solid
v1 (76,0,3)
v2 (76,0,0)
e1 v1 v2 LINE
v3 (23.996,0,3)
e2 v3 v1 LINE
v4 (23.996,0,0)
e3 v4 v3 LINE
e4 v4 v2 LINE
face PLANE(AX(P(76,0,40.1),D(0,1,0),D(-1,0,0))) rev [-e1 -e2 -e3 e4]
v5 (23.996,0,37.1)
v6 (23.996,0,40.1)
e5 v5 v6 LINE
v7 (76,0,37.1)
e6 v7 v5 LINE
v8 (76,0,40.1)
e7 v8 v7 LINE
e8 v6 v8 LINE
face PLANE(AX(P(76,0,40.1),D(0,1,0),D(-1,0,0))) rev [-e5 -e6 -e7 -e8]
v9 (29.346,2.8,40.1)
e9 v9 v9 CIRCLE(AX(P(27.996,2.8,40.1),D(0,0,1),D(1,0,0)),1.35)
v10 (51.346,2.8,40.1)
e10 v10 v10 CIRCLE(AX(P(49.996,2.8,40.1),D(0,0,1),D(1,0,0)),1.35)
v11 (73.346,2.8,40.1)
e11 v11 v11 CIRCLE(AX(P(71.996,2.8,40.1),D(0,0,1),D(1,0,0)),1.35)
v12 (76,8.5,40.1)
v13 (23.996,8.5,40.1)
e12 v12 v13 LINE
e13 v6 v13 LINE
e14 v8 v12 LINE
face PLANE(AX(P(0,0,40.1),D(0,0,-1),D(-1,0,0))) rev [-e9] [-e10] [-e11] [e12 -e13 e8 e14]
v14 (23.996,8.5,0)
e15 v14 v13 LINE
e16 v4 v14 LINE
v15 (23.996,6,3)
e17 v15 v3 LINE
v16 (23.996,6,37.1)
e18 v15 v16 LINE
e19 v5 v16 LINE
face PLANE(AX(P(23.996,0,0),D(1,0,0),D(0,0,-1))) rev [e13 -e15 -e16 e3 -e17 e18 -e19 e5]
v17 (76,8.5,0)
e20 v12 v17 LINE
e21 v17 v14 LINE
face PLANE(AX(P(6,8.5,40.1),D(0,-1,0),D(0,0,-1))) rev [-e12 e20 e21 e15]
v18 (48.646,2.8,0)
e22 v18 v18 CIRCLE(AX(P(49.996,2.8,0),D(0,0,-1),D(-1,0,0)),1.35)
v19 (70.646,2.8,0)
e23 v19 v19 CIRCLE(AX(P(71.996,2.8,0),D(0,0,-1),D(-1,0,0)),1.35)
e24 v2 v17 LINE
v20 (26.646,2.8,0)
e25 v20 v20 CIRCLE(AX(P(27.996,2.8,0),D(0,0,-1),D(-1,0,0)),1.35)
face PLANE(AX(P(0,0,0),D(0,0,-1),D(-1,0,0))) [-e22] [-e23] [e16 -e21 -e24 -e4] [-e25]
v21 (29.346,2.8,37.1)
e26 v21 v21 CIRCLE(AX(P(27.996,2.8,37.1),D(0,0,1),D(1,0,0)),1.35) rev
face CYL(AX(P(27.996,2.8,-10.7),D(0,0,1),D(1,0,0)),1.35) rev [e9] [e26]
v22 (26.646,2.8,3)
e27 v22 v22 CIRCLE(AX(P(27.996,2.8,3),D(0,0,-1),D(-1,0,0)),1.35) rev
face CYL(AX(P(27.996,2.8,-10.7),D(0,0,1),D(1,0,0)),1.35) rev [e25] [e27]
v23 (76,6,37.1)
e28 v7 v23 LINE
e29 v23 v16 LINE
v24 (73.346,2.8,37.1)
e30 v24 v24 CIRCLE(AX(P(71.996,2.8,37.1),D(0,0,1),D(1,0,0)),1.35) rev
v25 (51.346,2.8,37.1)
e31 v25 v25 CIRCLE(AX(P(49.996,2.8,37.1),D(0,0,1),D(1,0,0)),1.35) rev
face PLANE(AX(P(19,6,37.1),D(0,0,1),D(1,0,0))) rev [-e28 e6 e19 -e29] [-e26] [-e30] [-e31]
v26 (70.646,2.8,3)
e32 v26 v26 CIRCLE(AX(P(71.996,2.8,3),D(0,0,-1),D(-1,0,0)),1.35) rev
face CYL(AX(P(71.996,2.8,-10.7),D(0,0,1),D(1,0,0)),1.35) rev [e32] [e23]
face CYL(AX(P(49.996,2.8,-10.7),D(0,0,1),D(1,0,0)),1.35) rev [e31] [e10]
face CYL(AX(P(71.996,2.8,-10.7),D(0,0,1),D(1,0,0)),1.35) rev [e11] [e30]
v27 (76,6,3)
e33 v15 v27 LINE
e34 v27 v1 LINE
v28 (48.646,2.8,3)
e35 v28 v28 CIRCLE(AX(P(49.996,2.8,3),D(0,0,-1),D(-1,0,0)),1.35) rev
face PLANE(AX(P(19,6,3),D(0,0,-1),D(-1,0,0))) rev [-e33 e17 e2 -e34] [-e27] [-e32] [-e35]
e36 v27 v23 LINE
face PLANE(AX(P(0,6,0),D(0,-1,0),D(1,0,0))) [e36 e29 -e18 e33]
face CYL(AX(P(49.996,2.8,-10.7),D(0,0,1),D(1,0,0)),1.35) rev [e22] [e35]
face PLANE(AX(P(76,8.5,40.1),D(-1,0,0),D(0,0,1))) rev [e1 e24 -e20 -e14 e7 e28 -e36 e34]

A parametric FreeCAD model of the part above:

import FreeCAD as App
import Part
import Sketcher


def add_polygon(sketch, points):
    """Adds a closed chain of lines whose ends are joined by coincident constraints."""
    first, n = sketch.GeometryCount, len(points)
    for a, b in zip(points, points[1:] + points[:1]):
        sketch.addGeometry(Part.LineSegment(App.Vector(*a, 0), App.Vector(*b, 0)), False)
    for i in range(n):
        sketch.addConstraint(Sketcher.Constraint("Coincident", first + i, 2, first + (i + 1) % n, 1))

doc = App.newDocument("Part")
params = doc.addObject("Spreadsheet::Sheet", "Params")
for row, (alias, value) in enumerate([
    ("sketch1_width", "76 mm"),
    ("sketch1_width2", "70 mm"),
    ("sketch1_height", "8.5 mm"),
    ("pad1_length", "40.1 mm"),
    ("sketch2_diameter", "2.7 mm"),
    ("pocket1_length", "50.8 mm"),
    ("pocket2_length", "50.8 mm"),
    ("sketch4_height", "34.1 mm"),
    ("pocket3_length", "6 mm"),
], start=1):
    params.set(f"A{row}", alias)
    params.set(f"B{row}", "=" + value)
    params.setAlias(f"B{row}", alias)

body = doc.addObject("PartDesign::Body", "Body")

sketch1 = doc.addObject("Sketcher::SketchObject", "Sketch")
body.addObject(sketch1)
sketch1.AttachmentSupport = (doc.XY_Plane, [""])
sketch1.MapMode = "FlatFace"
add_polygon(sketch1, [(0, 53), (0, 0), (76, 0), (76, 8), (6, 8), (6, 53)])
sketch1.addConstraint(Sketcher.Constraint("Vertical", 0))
sketch1.addConstraint(Sketcher.Constraint("Horizontal", 1))
sketch1.addConstraint(Sketcher.Constraint("Vertical", 2))
sketch1.addConstraint(Sketcher.Constraint("Horizontal", 3))
sketch1.addConstraint(Sketcher.Constraint("Vertical", 4))
sketch1.addConstraint(Sketcher.Constraint("Horizontal", 5))
sketch1.addConstraint(Sketcher.Constraint("Coincident", 0, 2, -1, 1))
sketch1.addConstraint(Sketcher.Constraint("DistanceX", 1, 1, 1, 2, 76.0))
sketch1.addConstraint(Sketcher.Constraint("DistanceX", 3, 2, 3, 1, 70.0))
sketch1.addConstraint(Sketcher.Constraint("DistanceY", 2, 1, 2, 2, 8.5))
sketch1.addConstraint(Sketcher.Constraint("DistanceY", 0, 2, 0, 1, 52.578))
sketch1.setExpression("Constraints[13]", "Params.sketch1_width")
sketch1.setExpression("Constraints[14]", "Params.sketch1_width2")
sketch1.setExpression("Constraints[15]", "Params.sketch1_height")
pad1 = doc.addObject("PartDesign::Pad", "Pad")
body.addObject(pad1)
pad1.Profile = sketch1
pad1.setExpression("Length", "Params.pad1_length")

sketch2 = doc.addObject("Sketcher::SketchObject", "Sketch001")
body.addObject(sketch2)
sketch2.AttachmentSupport = (doc.XY_Plane, [""])
sketch2.MapMode = "FlatFace"
sketch2.AttachmentOffset = App.Placement(App.Vector(0, 0, 40.1), App.Rotation())
sketch2.addGeometry(Part.Circle(App.Vector(28, 2.8, 0), App.Vector(0, 0, 1), 1.4), False)
sketch2.addGeometry(Part.Circle(App.Vector(50, 2.8, 0), App.Vector(0, 0, 1), 1.4), False)
sketch2.addGeometry(Part.Circle(App.Vector(72, 2.8, 0), App.Vector(0, 0, 1), 1.4), False)
sketch2.addConstraint(Sketcher.Constraint("Equal", 0, 1))
sketch2.addConstraint(Sketcher.Constraint("Equal", 1, 2))
sketch2.addConstraint(Sketcher.Constraint("Horizontal", 0, 3, 1, 3))
sketch2.addConstraint(Sketcher.Constraint("Horizontal", 1, 3, 2, 3))
sketch2.addConstraint(Sketcher.Constraint("Diameter", 0, 2.7))
sketch2.addConstraint(Sketcher.Constraint("DistanceX", 0, 3, 1, 3, 22.0))
sketch2.addConstraint(Sketcher.Constraint("DistanceX", 1, 3, 2, 3, 22.0))
sketch2.addConstraint(Sketcher.Constraint("DistanceY", -1, 1, 0, 3, 2.8))
sketch2.addConstraint(Sketcher.Constraint("DistanceX", -1, 1, 0, 3, 27.996))
sketch2.setExpression("Constraints[4]", "Params.sketch2_diameter")
pocket1 = doc.addObject("PartDesign::Pocket", "Pocket")
body.addObject(pocket1)
pocket1.Profile = sketch2
pocket1.setExpression("Length", "Params.pocket1_length")

sketch3 = doc.addObject("Sketcher::SketchObject", "Sketch002")
body.addObject(sketch3)
sketch3.AttachmentSupport = (doc.YZ_Plane, [""])
sketch3.MapMode = "FlatFace"
sketch3.addGeometry(Part.Circle(App.Vector(17.6, 27.9, 0), App.Vector(0, 0, 1), 1), False)
sketch3.addGeometry(Part.Circle(App.Vector(17.6, 11.9, 0), App.Vector(0, 0, 1), 1), False)
sketch3.addGeometry(Part.Circle(App.Vector(49.6, 27.9, 0), App.Vector(0, 0, 1), 1), False)
sketch3.addGeometry(Part.Circle(App.Vector(49.6, 11.9, 0), App.Vector(0, 0, 1), 1), False)
sketch3.addConstraint(Sketcher.Constraint("Equal", 0, 1))
sketch3.addConstraint(Sketcher.Constraint("Equal", 1, 2))
sketch3.addConstraint(Sketcher.Constraint("Equal", 2, 3))
sketch3.addConstraint(Sketcher.Constraint("Horizontal", 0, 3, 2, 3))
sketch3.addConstraint(Sketcher.Constraint("Horizontal", 1, 3, 3, 3))
sketch3.addConstraint(Sketcher.Constraint("Vertical", 0, 3, 1, 3))
sketch3.addConstraint(Sketcher.Constraint("Vertical", 2, 3, 3, 3))
sketch3.addConstraint(Sketcher.Constraint("Diameter", 0, 2.032))
sketch3.addConstraint(Sketcher.Constraint("DistanceY", 1, 3, 0, 3, 16.0))
sketch3.addConstraint(Sketcher.Constraint("DistanceX", 0, 3, 2, 3, 32.0))
sketch3.addConstraint(Sketcher.Constraint("DistanceX", -1, 1, 0, 3, 17.6))
sketch3.addConstraint(Sketcher.Constraint("DistanceY", -1, 1, 0, 3, 27.88))
pocket2 = doc.addObject("PartDesign::Pocket", "Pocket001")
body.addObject(pocket2)
pocket2.Profile = sketch3
pocket2.setExpression("Length", "Params.pocket2_length")
pocket2.Reversed = True

sketch4 = doc.addObject("Sketcher::SketchObject", "Sketch003")
body.addObject(sketch4)
sketch4.AttachmentSupport = (doc.XZ_Plane, [""])
sketch4.MapMode = "FlatFace"
add_polygon(sketch4, [(19, 37), (19, 3), (81, 3), (81, 37)])
sketch4.addConstraint(Sketcher.Constraint("Vertical", 0))
sketch4.addConstraint(Sketcher.Constraint("Horizontal", 1))
sketch4.addConstraint(Sketcher.Constraint("Vertical", 2))
sketch4.addConstraint(Sketcher.Constraint("Horizontal", 3))
sketch4.addConstraint(Sketcher.Constraint("DistanceY", 0, 2, 0, 1, 34.1))
sketch4.addConstraint(Sketcher.Constraint("DistanceX", -1, 1, 0, 2, 19.0))
sketch4.addConstraint(Sketcher.Constraint("DistanceY", -1, 1, 0, 2, 3.0))
sketch4.addConstraint(Sketcher.Constraint("DistanceX", 1, 1, 1, 2, 62.086074))
sketch4.setExpression("Constraints[8]", "Params.sketch4_height")
pocket3 = doc.addObject("PartDesign::Pocket", "Pocket002")
body.addObject(pocket3)
pocket3.Profile = sketch4
pocket3.setExpression("Length", "Params.pocket3_length")

sketch5 = doc.addObject("Sketcher::SketchObject", "Sketch004")
body.addObject(sketch5)
sketch5.AttachmentSupport = (doc.XY_Plane, [""])
sketch5.MapMode = "FlatFace"
sketch5.AttachmentOffset = App.Placement(App.Vector(0, 0, 40.1), App.Rotation())
add_polygon(sketch5, [(-9, 72), (-9, 0), (24, 0), (24, 72)])
sketch5.addConstraint(Sketcher.Constraint("Vertical", 0))
sketch5.addConstraint(Sketcher.Constraint("Horizontal", 1))
sketch5.addConstraint(Sketcher.Constraint("Vertical", 2))
sketch5.addConstraint(Sketcher.Constraint("Horizontal", 3))
sketch5.addConstraint(Sketcher.Constraint("PointOnObject", 0, 2, -1))
sketch5.addConstraint(Sketcher.Constraint("DistanceX", -1, 1, 1, 2, 23.996))
sketch5.addConstraint(Sketcher.Constraint("DistanceX", 1, 1, 1, 2, 33.483743))
sketch5.addConstraint(Sketcher.Constraint("DistanceY", 0, 2, 0, 1, 71.762693))
pocket4 = doc.addObject("PartDesign::Pocket", "Pocket003")
body.addObject(pocket4)
pocket4.Profile = sketch5
pocket4.Type = "ThroughAll"

doc.recompute()
